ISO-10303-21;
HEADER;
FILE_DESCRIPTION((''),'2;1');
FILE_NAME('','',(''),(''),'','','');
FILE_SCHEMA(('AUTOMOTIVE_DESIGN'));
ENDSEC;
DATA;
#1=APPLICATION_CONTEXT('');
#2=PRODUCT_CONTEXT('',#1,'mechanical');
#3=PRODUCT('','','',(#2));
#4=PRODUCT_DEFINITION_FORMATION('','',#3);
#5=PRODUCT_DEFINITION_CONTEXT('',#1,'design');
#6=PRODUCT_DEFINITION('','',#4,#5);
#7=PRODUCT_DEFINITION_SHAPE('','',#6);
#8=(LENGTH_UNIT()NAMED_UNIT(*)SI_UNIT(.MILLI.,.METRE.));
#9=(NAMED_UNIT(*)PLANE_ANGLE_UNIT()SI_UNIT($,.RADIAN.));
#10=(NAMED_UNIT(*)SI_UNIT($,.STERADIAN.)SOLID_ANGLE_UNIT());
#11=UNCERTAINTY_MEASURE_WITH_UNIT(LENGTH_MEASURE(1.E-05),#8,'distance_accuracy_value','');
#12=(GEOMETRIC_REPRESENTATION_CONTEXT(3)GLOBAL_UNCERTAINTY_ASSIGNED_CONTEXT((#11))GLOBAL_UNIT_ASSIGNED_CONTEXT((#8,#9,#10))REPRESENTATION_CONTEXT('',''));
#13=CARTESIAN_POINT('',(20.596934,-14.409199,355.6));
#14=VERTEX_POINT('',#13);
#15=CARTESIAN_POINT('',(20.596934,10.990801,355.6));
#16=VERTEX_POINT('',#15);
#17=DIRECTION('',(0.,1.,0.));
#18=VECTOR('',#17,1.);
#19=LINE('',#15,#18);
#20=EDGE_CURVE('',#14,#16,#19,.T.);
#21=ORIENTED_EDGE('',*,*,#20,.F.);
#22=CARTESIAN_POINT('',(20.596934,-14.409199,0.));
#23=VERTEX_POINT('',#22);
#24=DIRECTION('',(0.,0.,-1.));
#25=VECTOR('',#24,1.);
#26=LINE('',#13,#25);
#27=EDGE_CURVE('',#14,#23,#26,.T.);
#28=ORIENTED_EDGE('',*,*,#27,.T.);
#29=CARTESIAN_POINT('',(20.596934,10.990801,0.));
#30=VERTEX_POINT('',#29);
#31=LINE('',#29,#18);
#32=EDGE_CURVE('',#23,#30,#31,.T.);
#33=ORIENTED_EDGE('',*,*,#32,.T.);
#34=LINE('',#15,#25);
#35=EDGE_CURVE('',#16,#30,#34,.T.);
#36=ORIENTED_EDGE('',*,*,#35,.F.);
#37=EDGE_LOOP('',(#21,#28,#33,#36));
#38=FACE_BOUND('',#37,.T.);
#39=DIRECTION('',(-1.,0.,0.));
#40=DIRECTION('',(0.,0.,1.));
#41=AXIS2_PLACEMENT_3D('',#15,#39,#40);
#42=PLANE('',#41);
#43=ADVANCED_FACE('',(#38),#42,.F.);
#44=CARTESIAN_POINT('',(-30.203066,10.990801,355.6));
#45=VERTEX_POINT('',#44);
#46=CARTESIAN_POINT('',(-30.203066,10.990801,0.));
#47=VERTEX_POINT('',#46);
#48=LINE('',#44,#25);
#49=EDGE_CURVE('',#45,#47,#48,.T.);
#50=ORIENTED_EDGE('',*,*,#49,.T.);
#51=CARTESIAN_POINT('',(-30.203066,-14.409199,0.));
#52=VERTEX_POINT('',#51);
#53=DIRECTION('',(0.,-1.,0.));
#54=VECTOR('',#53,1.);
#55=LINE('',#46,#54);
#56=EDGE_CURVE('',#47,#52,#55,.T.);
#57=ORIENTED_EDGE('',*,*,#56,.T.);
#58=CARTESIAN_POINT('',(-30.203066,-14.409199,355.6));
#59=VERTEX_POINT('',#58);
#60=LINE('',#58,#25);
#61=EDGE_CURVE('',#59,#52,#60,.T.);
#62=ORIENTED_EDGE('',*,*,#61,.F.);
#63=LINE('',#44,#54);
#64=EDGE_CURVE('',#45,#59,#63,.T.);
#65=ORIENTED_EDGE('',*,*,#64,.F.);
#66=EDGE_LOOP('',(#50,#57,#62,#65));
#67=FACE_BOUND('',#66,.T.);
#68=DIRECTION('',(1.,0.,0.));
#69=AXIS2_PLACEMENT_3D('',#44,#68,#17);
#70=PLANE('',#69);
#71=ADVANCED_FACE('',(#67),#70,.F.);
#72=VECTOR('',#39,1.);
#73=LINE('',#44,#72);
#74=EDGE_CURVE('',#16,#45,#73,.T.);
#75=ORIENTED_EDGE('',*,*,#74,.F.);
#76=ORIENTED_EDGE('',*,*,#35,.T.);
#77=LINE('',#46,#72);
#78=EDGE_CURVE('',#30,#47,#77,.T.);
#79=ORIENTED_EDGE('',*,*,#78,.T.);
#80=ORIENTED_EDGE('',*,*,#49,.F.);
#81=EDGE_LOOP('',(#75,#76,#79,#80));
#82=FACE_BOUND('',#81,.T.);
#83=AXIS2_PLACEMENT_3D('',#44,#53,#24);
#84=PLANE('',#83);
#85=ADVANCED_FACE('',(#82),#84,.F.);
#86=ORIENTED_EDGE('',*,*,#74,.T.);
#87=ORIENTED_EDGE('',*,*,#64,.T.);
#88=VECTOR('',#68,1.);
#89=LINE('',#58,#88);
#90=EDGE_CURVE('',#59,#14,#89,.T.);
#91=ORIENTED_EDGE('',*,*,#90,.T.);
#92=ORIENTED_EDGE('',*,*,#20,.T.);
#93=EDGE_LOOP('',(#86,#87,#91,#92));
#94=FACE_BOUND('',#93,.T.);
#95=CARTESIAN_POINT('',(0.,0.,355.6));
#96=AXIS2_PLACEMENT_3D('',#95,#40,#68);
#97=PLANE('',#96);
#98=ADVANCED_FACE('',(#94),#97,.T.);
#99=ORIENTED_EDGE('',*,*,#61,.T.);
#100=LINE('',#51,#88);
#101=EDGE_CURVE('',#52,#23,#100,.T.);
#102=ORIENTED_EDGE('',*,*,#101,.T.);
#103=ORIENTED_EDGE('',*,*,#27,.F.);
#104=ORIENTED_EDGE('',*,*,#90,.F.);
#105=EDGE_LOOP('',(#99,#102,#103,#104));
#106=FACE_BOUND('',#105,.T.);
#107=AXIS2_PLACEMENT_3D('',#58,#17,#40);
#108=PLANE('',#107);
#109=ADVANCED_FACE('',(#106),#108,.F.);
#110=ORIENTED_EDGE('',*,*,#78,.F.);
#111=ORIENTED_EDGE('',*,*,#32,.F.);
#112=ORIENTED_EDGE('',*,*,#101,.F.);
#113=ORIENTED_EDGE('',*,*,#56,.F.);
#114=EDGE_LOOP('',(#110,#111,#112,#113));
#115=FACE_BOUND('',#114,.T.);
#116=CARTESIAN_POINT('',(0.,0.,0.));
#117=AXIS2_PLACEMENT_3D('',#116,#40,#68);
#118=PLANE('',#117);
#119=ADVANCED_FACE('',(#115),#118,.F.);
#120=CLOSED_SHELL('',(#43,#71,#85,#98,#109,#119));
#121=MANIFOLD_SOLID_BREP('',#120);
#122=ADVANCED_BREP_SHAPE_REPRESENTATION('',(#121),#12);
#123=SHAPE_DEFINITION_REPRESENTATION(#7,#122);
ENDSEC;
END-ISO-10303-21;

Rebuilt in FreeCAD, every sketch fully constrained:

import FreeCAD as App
import Part
import Sketcher

V = App.Vector
Q = App.Units.Quantity


def add_polygon(sketch, points):
    """Adds a closed chain of lines whose ends are joined by coincident constraints."""
    first, n = sketch.GeometryCount, len(points)
    for a, b in zip(points, points[1:] + points[:1]):
        sketch.addGeometry(Part.LineSegment(App.Vector(*a, 0), App.Vector(*b, 0)), False)
    for i in range(n):
        sketch.addConstraint(Sketcher.Constraint("Coincident", first + i, 2, first + (i + 1) % n, 1))

doc = App.newDocument("Part")
body = doc.addObject("PartDesign::Body", "Body")

# Sketch on XY plane
sketch1 = body.newObject("Sketcher::SketchObject", "Sketch")
sketch1.AttachmentSupport = (doc.getObject("XY_Plane"), [""])
sketch1.MapMode = "FlatFace"
add_polygon(sketch1, [(-30.203066, 10.990801), (-30.203066, -14.409199), (20.596934, -14.409199), (20.596934, 10.990801)])  # lines 0-3
sketch1.addConstraint([
    Sketcher.Constraint("Vertical", 0),
    Sketcher.Constraint("Horizontal", 1),
    Sketcher.Constraint("Vertical", 2),
    Sketcher.Constraint("Horizontal", 3),
    Sketcher.Constraint("DistanceX", 1, 1, 1, 2, Q("2 in")),
    Sketcher.Constraint("DistanceY", 0, 2, 0, 1, Q("1 in")),
    Sketcher.Constraint("DistanceY", 0, 2, -1, 1, 14.409199),
    Sketcher.Constraint("DistanceX", 0, 2, -1, 1, 30.203066),
])
pad1 = body.newObject("PartDesign::Pad", "Pad")
pad1.Profile = sketch1
pad1.Length = Q("14 in")

doc.recompute()
